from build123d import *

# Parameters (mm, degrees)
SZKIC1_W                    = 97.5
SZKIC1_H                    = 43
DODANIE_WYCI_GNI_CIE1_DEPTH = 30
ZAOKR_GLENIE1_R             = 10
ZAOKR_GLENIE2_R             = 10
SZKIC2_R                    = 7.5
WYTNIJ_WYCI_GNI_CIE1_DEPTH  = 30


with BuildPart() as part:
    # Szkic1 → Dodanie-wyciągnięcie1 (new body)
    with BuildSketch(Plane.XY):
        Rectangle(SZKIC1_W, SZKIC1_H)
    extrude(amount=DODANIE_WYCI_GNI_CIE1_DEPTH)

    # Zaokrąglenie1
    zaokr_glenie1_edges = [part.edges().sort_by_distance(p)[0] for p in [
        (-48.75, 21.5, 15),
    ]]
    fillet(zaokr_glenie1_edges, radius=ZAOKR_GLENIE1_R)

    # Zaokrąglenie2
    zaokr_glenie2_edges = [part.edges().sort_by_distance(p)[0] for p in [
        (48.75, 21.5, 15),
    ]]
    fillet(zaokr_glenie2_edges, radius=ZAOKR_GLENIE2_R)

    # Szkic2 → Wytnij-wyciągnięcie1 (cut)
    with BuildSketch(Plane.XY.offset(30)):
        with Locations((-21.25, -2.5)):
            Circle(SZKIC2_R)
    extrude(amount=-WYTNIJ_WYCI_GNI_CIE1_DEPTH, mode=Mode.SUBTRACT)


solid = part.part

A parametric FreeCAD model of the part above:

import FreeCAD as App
import Part
import Sketcher
from FreeCAD import Vector
Q = App.Units.Quantity


def edges_at(feature, points):
    """Names of the edges that pass closest to the given points."""
    edges = feature.Shape.Edges
    near = lambda p: min(range(len(edges)), key=lambda i: edges[i].distToShape(Part.Vertex(*p))[0])
    return sorted({f"Edge{near(p) + 1}" for p in points})


def add_polygon(sketch, points):
    """Adds a closed chain of lines whose ends are joined by coincident constraints."""
    first, n = sketch.GeometryCount, len(points)
    for a, b in zip(points, points[1:] + points[:1]):
        sketch.addGeometry(Part.LineSegment(App.Vector(*a, 0), App.Vector(*b, 0)), False)
    for i in range(n):
        sketch.addConstraint(Sketcher.Constraint("Coincident", first + i, 2, first + (i + 1) % n, 1))

doc = App.newDocument("Part")
body = doc.addObject("PartDesign::Body", "Body")

# Sketch on XY plane
sketch1 = body.newObject("Sketcher::SketchObject", "Sketch")
sketch1.AttachmentSupport = (doc.getObject("XY_Plane"), [""])
sketch1.MapMode = "FlatFace"
add_polygon(sketch1, [(-49, 22), (-49, -22), (49, -22), (49, 22)])  # lines 0-3
sketch1.addConstraint(Sketcher.Constraint("Vertical", 0))
sketch1.addConstraint(Sketcher.Constraint("Horizontal", 1))
sketch1.addConstraint(Sketcher.Constraint("Vertical", 2))
sketch1.addConstraint(Sketcher.Constraint("Horizontal", 3))
sketch1.addConstraint(Sketcher.Constraint("Symmetric", 0, 2, 2, 2, -1, 1))
sketch1.addConstraint(Sketcher.Constraint("DistanceY", 0, 2, 0, 1, Q("43 mm")))
sketch1.addConstraint(Sketcher.Constraint("DistanceX", 1, 1, 1, 2, Q("97.5 mm")))
pad1 = body.newObject("PartDesign::Pad", "Pad")
pad1.Profile = sketch1
pad1.Length = 30
doc.recompute()

fillet = body.newObject("PartDesign::Fillet", "Fillet")
fillet.Base = (pad1, edges_at(pad1, [(-48.75, 21.5, 15)]))
fillet.Radius = 10
doc.recompute()

fillet2 = body.newObject("PartDesign::Fillet", "Fillet001")
fillet2.Base = (fillet, edges_at(fillet, [(48.75, 21.5, 15)]))
fillet2.Radius = 10

# Sketch on XY plane
sketch2 = body.newObject("Sketcher::SketchObject", "Sketch001")
sketch2.AttachmentSupport = (doc.getObject("XY_Plane"), [""])
sketch2.MapMode = "FlatFace"
sketch2.AttachmentOffset = App.Placement(Vector(0, 0, 30), App.Rotation())
sketch2.addGeometry(Part.Circle(Vector(-21, -2, 0), Vector(0, 0, 1), 8), False)
sketch2.addConstraint(Sketcher.Constraint("Diameter", 0, Q("15 mm")))
sketch2.addConstraint(Sketcher.Constraint("DistanceY", 0, 3, -1, 1, Q("2.5 mm")))
sketch2.addConstraint(Sketcher.Constraint("DistanceX", 0, 3, -1, 1, Q("21.25 mm")))
pocket1 = body.newObject("PartDesign::Pocket", "Pocket")
pocket1.Profile = sketch2
pocket1.Length = 30

doc.recompute()
